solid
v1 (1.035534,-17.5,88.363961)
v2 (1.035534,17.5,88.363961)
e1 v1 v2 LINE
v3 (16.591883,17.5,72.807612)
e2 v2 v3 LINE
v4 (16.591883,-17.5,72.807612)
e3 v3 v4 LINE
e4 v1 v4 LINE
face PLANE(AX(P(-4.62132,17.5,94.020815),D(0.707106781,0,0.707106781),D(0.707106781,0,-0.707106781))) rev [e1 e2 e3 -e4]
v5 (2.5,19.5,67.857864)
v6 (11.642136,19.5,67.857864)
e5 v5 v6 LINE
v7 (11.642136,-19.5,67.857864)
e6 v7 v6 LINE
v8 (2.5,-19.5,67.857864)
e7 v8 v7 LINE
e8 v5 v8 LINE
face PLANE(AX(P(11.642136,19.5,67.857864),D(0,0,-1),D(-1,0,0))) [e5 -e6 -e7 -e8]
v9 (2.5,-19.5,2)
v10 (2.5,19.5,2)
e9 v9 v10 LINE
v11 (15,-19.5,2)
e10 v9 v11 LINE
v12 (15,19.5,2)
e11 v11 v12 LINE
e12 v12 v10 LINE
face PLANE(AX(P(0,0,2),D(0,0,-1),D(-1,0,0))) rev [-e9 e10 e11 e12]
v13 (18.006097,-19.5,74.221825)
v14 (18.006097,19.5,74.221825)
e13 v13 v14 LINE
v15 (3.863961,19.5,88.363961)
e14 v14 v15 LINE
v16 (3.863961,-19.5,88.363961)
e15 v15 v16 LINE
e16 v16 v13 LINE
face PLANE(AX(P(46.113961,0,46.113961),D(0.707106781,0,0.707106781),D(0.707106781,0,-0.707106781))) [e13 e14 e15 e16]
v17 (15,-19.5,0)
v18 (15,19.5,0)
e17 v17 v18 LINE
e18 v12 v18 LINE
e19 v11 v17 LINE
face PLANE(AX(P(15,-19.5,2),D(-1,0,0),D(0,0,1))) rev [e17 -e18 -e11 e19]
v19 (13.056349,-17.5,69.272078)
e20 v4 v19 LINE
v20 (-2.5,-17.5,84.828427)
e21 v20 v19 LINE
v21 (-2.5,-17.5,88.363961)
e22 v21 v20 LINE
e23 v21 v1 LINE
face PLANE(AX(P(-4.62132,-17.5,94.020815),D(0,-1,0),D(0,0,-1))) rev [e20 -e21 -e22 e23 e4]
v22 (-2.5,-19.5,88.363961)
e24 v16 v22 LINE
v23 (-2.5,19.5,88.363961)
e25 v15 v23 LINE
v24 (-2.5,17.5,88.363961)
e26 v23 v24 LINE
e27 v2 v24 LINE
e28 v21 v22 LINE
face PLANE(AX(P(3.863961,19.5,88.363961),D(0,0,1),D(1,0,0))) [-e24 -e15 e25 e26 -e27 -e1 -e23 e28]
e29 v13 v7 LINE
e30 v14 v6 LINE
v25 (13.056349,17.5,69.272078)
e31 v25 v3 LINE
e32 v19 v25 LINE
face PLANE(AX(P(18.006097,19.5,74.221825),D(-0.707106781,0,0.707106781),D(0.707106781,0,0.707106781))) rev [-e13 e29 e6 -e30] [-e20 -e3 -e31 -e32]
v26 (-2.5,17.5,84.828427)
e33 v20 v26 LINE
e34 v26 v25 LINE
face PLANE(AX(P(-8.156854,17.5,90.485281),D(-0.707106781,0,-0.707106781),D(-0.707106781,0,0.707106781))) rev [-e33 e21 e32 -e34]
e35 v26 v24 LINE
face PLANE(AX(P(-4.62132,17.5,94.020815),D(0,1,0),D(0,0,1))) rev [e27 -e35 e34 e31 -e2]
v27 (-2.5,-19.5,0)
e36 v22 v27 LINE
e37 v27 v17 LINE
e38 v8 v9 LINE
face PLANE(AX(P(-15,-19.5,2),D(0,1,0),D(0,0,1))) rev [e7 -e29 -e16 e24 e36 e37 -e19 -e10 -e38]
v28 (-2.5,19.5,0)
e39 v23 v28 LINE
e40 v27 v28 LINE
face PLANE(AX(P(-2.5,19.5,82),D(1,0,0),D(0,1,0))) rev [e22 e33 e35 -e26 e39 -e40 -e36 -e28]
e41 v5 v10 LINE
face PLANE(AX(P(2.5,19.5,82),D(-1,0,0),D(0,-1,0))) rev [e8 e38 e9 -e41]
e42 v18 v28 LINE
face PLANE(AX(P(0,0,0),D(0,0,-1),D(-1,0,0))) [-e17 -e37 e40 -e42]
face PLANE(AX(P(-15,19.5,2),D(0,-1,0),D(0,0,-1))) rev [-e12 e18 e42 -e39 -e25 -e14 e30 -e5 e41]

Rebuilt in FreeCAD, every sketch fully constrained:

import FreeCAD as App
import Part
import Sketcher
Q = App.Units.Quantity

doc = App.newDocument("Part")
params = doc.addObject("Spreadsheet::Sheet", "Params")
for row, (alias, value) in enumerate([
    ("sketch1_width", "30 mm"),
    ("sketch1_height", "39 mm"),
    ("pad1_length", "2 mm"),
    ("sketch2_width", "5 mm"),
    ("sketch2_height", "39 mm"),
    ("pad2_length", "80 mm"),
    ("sketch3_width", "5 mm"),
    ("pocket1_length", "39 mm"),
    ("sketch4_width", "20 mm"),
    ("sketch4_height", "39 mm"),
    ("pad3_length", "9 mm"),
    ("sketch5_width", "5 mm"),
    ("sketch5_height", "35 mm"),
    ("pocket2_length", "30 mm"),
    ("sketch6_height", "39 mm"),
    ("sketch6_width", "12.5 mm"),
    ("pocket3_length", "2 mm"),
    ("sketch7_length", "9 mm"),
    ("pad4_length", "39 mm"),
    ("pad5_length", "39 mm"),
    ("sketch9_width", "5 mm"),
    ("sketch9_height", "35 mm"),
    ("pocket4_length", "10 mm"),
], start=1):
    params.set(f"A{row}", alias)
    params.set(f"B{row}", "=" + value)
    params.setAlias(f"B{row}", alias)

body = doc.addObject("PartDesign::Body", "Body")

# Sketch on XY plane
sketch1 = body.newObject("Sketcher::SketchObject", "Sketch")
sketch1.AttachmentSupport = (doc.getObject("XY_Plane"), [""])
sketch1.MapMode = "FlatFace"
sketch1.addGeometry([
    Part.LineSegment(App.Vector(-15, 19.5, 0), App.Vector(-15, -19.5, 0)),
    Part.LineSegment(App.Vector(-15, -19.5, 0), App.Vector(15, -19.5, 0)),
    Part.LineSegment(App.Vector(15, -19.5, 0), App.Vector(15, 19.5, 0)),
    Part.LineSegment(App.Vector(15, 19.5, 0), App.Vector(-15, 19.5, 0)),
], False)
sketch1.addConstraint([
    Sketcher.Constraint("Coincident", 0, 2, 1, 1),
    Sketcher.Constraint("Coincident", 1, 2, 2, 1),
    Sketcher.Constraint("Coincident", 2, 2, 3, 1),
    Sketcher.Constraint("Coincident", 3, 2, 0, 1),
    Sketcher.Constraint("Vertical", 0),
    Sketcher.Constraint("Horizontal", 1),
    Sketcher.Constraint("Vertical", 2),
    Sketcher.Constraint("Horizontal", 3),
    Sketcher.Constraint("Symmetric", 0, 2, 2, 2, -1, 1),
    Sketcher.Constraint("DistanceX", 1, 1, 1, 2, Q("30 mm")),
    Sketcher.Constraint("DistanceY", 0, 2, 0, 1, Q("39 mm")),
])
sketch1.setExpression("Constraints[9]", "Params.sketch1_width")
sketch1.setExpression("Constraints[10]", "Params.sketch1_height")
pad1 = body.newObject("PartDesign::Pad", "Pad")
pad1.Profile = sketch1
pad1.setExpression("Length", "Params.pad1_length")

# Sketch on XY plane
sketch2 = body.newObject("Sketcher::SketchObject", "Sketch001")
sketch2.AttachmentSupport = (doc.getObject("XY_Plane"), [""])
sketch2.MapMode = "FlatFace"
sketch2.AttachmentOffset = App.Placement(App.Vector(0, 0, 2), App.Rotation())
sketch2.addGeometry([
    Part.LineSegment(App.Vector(-2.5, 19.5, 0), App.Vector(-2.5, -19.5, 0)),
    Part.LineSegment(App.Vector(-2.5, -19.5, 0), App.Vector(2.5, -19.5, 0)),
    Part.LineSegment(App.Vector(2.5, -19.5, 0), App.Vector(2.5, 19.5, 0)),
    Part.LineSegment(App.Vector(2.5, 19.5, 0), App.Vector(-2.5, 19.5, 0)),
], False)
sketch2.addConstraint([
    Sketcher.Constraint("Coincident", 0, 2, 1, 1),
    Sketcher.Constraint("Coincident", 1, 2, 2, 1),
    Sketcher.Constraint("Coincident", 2, 2, 3, 1),
    Sketcher.Constraint("Coincident", 3, 2, 0, 1),
    Sketcher.Constraint("Vertical", 0),
    Sketcher.Constraint("Horizontal", 1),
    Sketcher.Constraint("Vertical", 2),
    Sketcher.Constraint("Horizontal", 3),
    Sketcher.Constraint("Symmetric", 0, 2, 2, 2, -1, 1),
    Sketcher.Constraint("DistanceX", 1, 1, 1, 2, Q("5 mm")),
    Sketcher.Constraint("DistanceY", 0, 2, 0, 1, Q("39 mm")),
])
sketch2.setExpression("Constraints[9]", "Params.sketch2_width")
sketch2.setExpression("Constraints[10]", "Params.sketch2_height")
pad2 = body.newObject("PartDesign::Pad", "Pad001")
pad2.Profile = sketch2
pad2.setExpression("Length", "Params.pad2_length")

# Sketch on XZ plane
sketch3 = body.newObject("Sketcher::SketchObject", "Sketch002")
sketch3.AttachmentSupport = (doc.getObject("XZ_Plane"), [""])
sketch3.MapMode = "FlatFace"
sketch3.AttachmentOffset = App.Placement(App.Vector(0, 0, 19.5), App.Rotation())
sketch3.addGeometry([
    Part.LineSegment(App.Vector(2.5, 82, 0), App.Vector(-2.5, 82, 0)),
    Part.LineSegment(App.Vector(-2.5, 82, 0), App.Vector(2.5, 77, 0)),
    Part.LineSegment(App.Vector(2.5, 77, 0), App.Vector(2.5, 82, 0)),
], False)
sketch3.addConstraint([
    Sketcher.Constraint("Coincident", 0, 2, 1, 1),
    Sketcher.Constraint("Coincident", 1, 2, 2, 1),
    Sketcher.Constraint("Coincident", 2, 2, 0, 1),
    Sketcher.Constraint("Horizontal", 0),
    Sketcher.Constraint("Vertical", 2),
    Sketcher.Constraint("Equal", 0, 2),
    Sketcher.Constraint("DistanceX", 0, 2, 0, 1, Q("5 mm")),
    Sketcher.Constraint("DistanceY", -1, 1, 0, 2, Q("82 mm")),
    Sketcher.Constraint("DistanceX", 0, 2, -1, 1, Q("2.5 mm")),
])
sketch3.setExpression("Constraints[6]", "Params.sketch3_width")
pocket1 = body.newObject("PartDesign::Pocket", "Pocket")
pocket1.Profile = sketch3
pocket1.setExpression("Length", "Params.pocket1_length")

# Sketch on an angled plane
sketch4 = body.newObject("Sketcher::SketchObject", "Sketch003")
sketch4.Placement = App.Placement(App.Vector(39.75, 0, 39.75), App.Rotation(App.Vector(0.707106781, 0, -0.707106781), App.Vector(0, 0.999999999, 0), App.Vector(0.707106781, 0, 0.707106781), "ZXY"))
sketch4.addGeometry([
    Part.LineSegment(App.Vector(-59.750523, 19.5, 0), App.Vector(-59.750523, -19.5, 0)),
    Part.LineSegment(App.Vector(-59.750523, -19.5, 0), App.Vector(-39.750523, -19.5, 0)),
    Part.LineSegment(App.Vector(-39.750523, -19.5, 0), App.Vector(-39.750523, 19.5, 0)),
    Part.LineSegment(App.Vector(-39.750523, 19.5, 0), App.Vector(-59.750523, 19.5, 0)),
], False)
sketch4.addConstraint([
    Sketcher.Constraint("Coincident", 0, 2, 1, 1),
    Sketcher.Constraint("Coincident", 1, 2, 2, 1),
    Sketcher.Constraint("Coincident", 2, 2, 3, 1),
    Sketcher.Constraint("Coincident", 3, 2, 0, 1),
    Sketcher.Constraint("Vertical", 0),
    Sketcher.Constraint("Horizontal", 1),
    Sketcher.Constraint("Vertical", 2),
    Sketcher.Constraint("Horizontal", 3),
    Sketcher.Constraint("DistanceX", 1, 1, 1, 2, Q("20 mm")),
    Sketcher.Constraint("DistanceY", 0, 2, 0, 1, Q("39 mm")),
    Sketcher.Constraint("DistanceY", 0, 2, -1, 1, Q("19.5 mm")),
    Sketcher.Constraint("DistanceX", 0, 2, -1, 1, Q("59.750523 mm")),
])
sketch4.setExpression("Constraints[8]", "Params.sketch4_width")
sketch4.setExpression("Constraints[9]", "Params.sketch4_height")
pad3 = body.newObject("PartDesign::Pad", "Pad002")
pad3.Profile = sketch4
pad3.setExpression("Length", "Params.pad3_length")

# Sketch on an angled plane
sketch5 = body.newObject("Sketcher::SketchObject", "Sketch004")
sketch5.Placement = App.Placement(App.Vector(-28.107864, 0, 28.107864), App.Rotation(App.Vector(-0.707106781, 0, -0.707106781), App.Vector(0, 0.999999999, 0), App.Vector(0.707106781, 0, -0.707106781), "ZXY"))
sketch5.addGeometry([
    Part.LineSegment(App.Vector(-63.214989, 17.5, 0), App.Vector(-63.214989, -17.5, 0)),
    Part.LineSegment(App.Vector(-63.214989, -17.5, 0), App.Vector(-58.214989, -17.5, 0)),
    Part.LineSegment(App.Vector(-58.214989, -17.5, 0), App.Vector(-58.214989, 17.5, 0)),
    Part.LineSegment(App.Vector(-58.214989, 17.5, 0), App.Vector(-63.214989, 17.5, 0)),
], False)
sketch5.addConstraint([
    Sketcher.Constraint("Coincident", 0, 2, 1, 1),
    Sketcher.Constraint("Coincident", 1, 2, 2, 1),
    Sketcher.Constraint("Coincident", 2, 2, 3, 1),
    Sketcher.Constraint("Coincident", 3, 2, 0, 1),
    Sketcher.Constraint("Vertical", 0),
    Sketcher.Constraint("Horizontal", 1),
    Sketcher.Constraint("Vertical", 2),
    Sketcher.Constraint("Horizontal", 3),
    Sketcher.Constraint("DistanceX", 1, 1, 1, 2, Q("5 mm")),
    Sketcher.Constraint("DistanceY", 0, 2, 0, 1, Q("35 mm")),
    Sketcher.Constraint("DistanceY", 0, 2, -1, 1, Q("17.5 mm")),
    Sketcher.Constraint("DistanceX", 0, 2, -1, 1, Q("63.214989 mm")),
])
sketch5.setExpression("Constraints[8]", "Params.sketch5_width")
sketch5.setExpression("Constraints[9]", "Params.sketch5_height")
pocket2 = body.newObject("PartDesign::Pocket", "Pocket001")
pocket2.Profile = sketch5
pocket2.setExpression("Length", "Params.pocket2_length")

# Sketch on XY plane
sketch6 = body.newObject("Sketcher::SketchObject", "Sketch005")
sketch6.AttachmentSupport = (doc.getObject("XY_Plane"), [""])
sketch6.MapMode = "FlatFace"
sketch6.AttachmentOffset = App.Placement(App.Vector(0, 0, 2), App.Rotation())
sketch6.addGeometry([
    Part.LineSegment(App.Vector(-15, 19.5, 0), App.Vector(-15, -19.5, 0)),
    Part.LineSegment(App.Vector(-15, -19.5, 0), App.Vector(-2.5, -19.5, 0)),
    Part.LineSegment(App.Vector(-2.5, -19.5, 0), App.Vector(-2.5, 19.5, 0)),
    Part.LineSegment(App.Vector(-2.5, 19.5, 0), App.Vector(-15, 19.5, 0)),
], False)
sketch6.addConstraint([
    Sketcher.Constraint("Coincident", 0, 2, 1, 1),
    Sketcher.Constraint("Coincident", 1, 2, 2, 1),
    Sketcher.Constraint("Coincident", 2, 2, 3, 1),
    Sketcher.Constraint("Coincident", 3, 2, 0, 1),
    Sketcher.Constraint("Vertical", 0),
    Sketcher.Constraint("Horizontal", 1),
    Sketcher.Constraint("Vertical", 2),
    Sketcher.Constraint("Horizontal", 3),
    Sketcher.Constraint("DistanceY", 0, 2, 0, 1, Q("39 mm")),
    Sketcher.Constraint("DistanceX", 1, 1, 1, 2, Q("12.5 mm")),
    Sketcher.Constraint("DistanceX", 0, 2, -1, 1, Q("15 mm")),
    Sketcher.Constraint("DistanceY", 0, 2, -1, 1, Q("19.5 mm")),
])
sketch6.setExpression("Constraints[8]", "Params.sketch6_height")
sketch6.setExpression("Constraints[9]", "Params.sketch6_width")
pocket3 = body.newObject("PartDesign::Pocket", "Pocket002")
pocket3.Profile = sketch6
pocket3.setExpression("Length", "Params.pocket3_length")

# Sketch on XZ plane
sketch7 = body.newObject("Sketcher::SketchObject", "Sketch006")
sketch7.AttachmentSupport = (doc.getObject("XZ_Plane"), [""])
sketch7.MapMode = "FlatFace"
sketch7.AttachmentOffset = App.Placement(App.Vector(0, 0, 19.5), App.Rotation())
sketch7.addGeometry([
    Part.LineSegment(App.Vector(-2.5, 82, 0), App.Vector(3.863961, 88.363961, 0)),
    Part.LineSegment(App.Vector(3.863961, 88.363961, 0), App.Vector(-2.5, 88.363961, 0)),
    Part.LineSegment(App.Vector(-2.5, 88.363961, 0), App.Vector(-2.5, 82, 0)),
], False)
sketch7.addConstraint([
    Sketcher.Constraint("Coincident", 0, 2, 1, 1),
    Sketcher.Constraint("Coincident", 1, 2, 2, 1),
    Sketcher.Constraint("Coincident", 2, 2, 0, 1),
    Sketcher.Constraint("Horizontal", 1),
    Sketcher.Constraint("Vertical", 2),
    Sketcher.Constraint("Equal", 1, 2),
    Sketcher.Constraint("Distance", 0, Q("9 mm")),
    Sketcher.Constraint("DistanceY", -1, 1, 2, 2, Q("82 mm")),
    Sketcher.Constraint("DistanceX", 1, 2, -1, 1, Q("2.5 mm")),
])
sketch7.setExpression("Constraints[6]", "Params.sketch7_length")
pad4 = body.newObject("PartDesign::Pad", "Pad003")
pad4.Profile = sketch7
pad4.setExpression("Length", "Params.pad4_length")
pad4.Reversed = True

# Sketch on XZ plane
sketch8 = body.newObject("Sketcher::SketchObject", "Sketch007")
sketch8.AttachmentSupport = (doc.getObject("XZ_Plane"), [""])
sketch8.MapMode = "FlatFace"
sketch8.AttachmentOffset = App.Placement(App.Vector(0, 0, 19.5), App.Rotation())
sketch8.addGeometry([
    Part.LineSegment(App.Vector(11.642136, 67.857864, 0), App.Vector(2.5, 77, 0)),
    Part.LineSegment(App.Vector(2.5, 77, 0), App.Vector(2.5, 67.857864, 0)),
    Part.LineSegment(App.Vector(2.5, 67.857864, 0), App.Vector(11.642136, 67.857864, 0)),
], False)
sketch8.addConstraint([
    Sketcher.Constraint("Coincident", 0, 2, 1, 1),
    Sketcher.Constraint("Coincident", 1, 2, 2, 1),
    Sketcher.Constraint("Coincident", 2, 2, 0, 1),
    Sketcher.Constraint("Vertical", 1),
    Sketcher.Constraint("Horizontal", 2),
    Sketcher.Constraint("Equal", 2, 1),
    Sketcher.Constraint("DistanceY", -1, 1, 0, 2, Q("77 mm")),
    Sketcher.Constraint("DistanceX", -1, 1, 0, 2, Q("2.5 mm")),
    Sketcher.Constraint("DistanceX", 2, 1, 2, 2, Q("9.142136 mm")),
])
pad5 = body.newObject("PartDesign::Pad", "Pad004")
pad5.Profile = sketch8
pad5.setExpression("Length", "Params.pad5_length")
pad5.Reversed = True

# Sketch on an angled plane
sketch9 = body.newObject("Sketcher::SketchObject", "Sketch008")
sketch9.Placement = App.Placement(App.Vector(-42.25, 0, 42.25), App.Rotation(App.Vector(-0.707106781, 0, -0.707106781), App.Vector(0, 0.999999999, 0), App.Vector(0.707106781, 0, -0.707106781), "ZXY"))
sketch9.addGeometry([
    Part.LineSegment(App.Vector(-63.214989, 17.5, 0), App.Vector(-63.214989, -17.5, 0)),
    Part.LineSegment(App.Vector(-63.214989, -17.5, 0), App.Vector(-58.214989, -17.5, 0)),
    Part.LineSegment(App.Vector(-58.214989, -17.5, 0), App.Vector(-58.214989, 17.5, 0)),
    Part.LineSegment(App.Vector(-58.214989, 17.5, 0), App.Vector(-63.214989, 17.5, 0)),
], False)
sketch9.addConstraint([
    Sketcher.Constraint("Coincident", 0, 2, 1, 1),
    Sketcher.Constraint("Coincident", 1, 2, 2, 1),
    Sketcher.Constraint("Coincident", 2, 2, 3, 1),
    Sketcher.Constraint("Coincident", 3, 2, 0, 1),
    Sketcher.Constraint("Vertical", 0),
    Sketcher.Constraint("Horizontal", 1),
    Sketcher.Constraint("Vertical", 2),
    Sketcher.Constraint("Horizontal", 3),
    Sketcher.Constraint("DistanceX", 1, 1, 1, 2, Q("5 mm")),
    Sketcher.Constraint("DistanceY", 0, 2, 0, 1, Q("35 mm")),
    Sketcher.Constraint("DistanceY", 0, 2, -1, 1, Q("17.5 mm")),
    Sketcher.Constraint("DistanceX", 0, 2, -1, 1, Q("63.214989 mm")),
])
sketch9.setExpression("Constraints[8]", "Params.sketch9_width")
sketch9.setExpression("Constraints[9]", "Params.sketch9_height")
pocket4 = body.newObject("PartDesign::Pocket", "Pocket003")
pocket4.Profile = sketch9
pocket4.setExpression("Length", "Params.pocket4_length")

doc.recompute()
